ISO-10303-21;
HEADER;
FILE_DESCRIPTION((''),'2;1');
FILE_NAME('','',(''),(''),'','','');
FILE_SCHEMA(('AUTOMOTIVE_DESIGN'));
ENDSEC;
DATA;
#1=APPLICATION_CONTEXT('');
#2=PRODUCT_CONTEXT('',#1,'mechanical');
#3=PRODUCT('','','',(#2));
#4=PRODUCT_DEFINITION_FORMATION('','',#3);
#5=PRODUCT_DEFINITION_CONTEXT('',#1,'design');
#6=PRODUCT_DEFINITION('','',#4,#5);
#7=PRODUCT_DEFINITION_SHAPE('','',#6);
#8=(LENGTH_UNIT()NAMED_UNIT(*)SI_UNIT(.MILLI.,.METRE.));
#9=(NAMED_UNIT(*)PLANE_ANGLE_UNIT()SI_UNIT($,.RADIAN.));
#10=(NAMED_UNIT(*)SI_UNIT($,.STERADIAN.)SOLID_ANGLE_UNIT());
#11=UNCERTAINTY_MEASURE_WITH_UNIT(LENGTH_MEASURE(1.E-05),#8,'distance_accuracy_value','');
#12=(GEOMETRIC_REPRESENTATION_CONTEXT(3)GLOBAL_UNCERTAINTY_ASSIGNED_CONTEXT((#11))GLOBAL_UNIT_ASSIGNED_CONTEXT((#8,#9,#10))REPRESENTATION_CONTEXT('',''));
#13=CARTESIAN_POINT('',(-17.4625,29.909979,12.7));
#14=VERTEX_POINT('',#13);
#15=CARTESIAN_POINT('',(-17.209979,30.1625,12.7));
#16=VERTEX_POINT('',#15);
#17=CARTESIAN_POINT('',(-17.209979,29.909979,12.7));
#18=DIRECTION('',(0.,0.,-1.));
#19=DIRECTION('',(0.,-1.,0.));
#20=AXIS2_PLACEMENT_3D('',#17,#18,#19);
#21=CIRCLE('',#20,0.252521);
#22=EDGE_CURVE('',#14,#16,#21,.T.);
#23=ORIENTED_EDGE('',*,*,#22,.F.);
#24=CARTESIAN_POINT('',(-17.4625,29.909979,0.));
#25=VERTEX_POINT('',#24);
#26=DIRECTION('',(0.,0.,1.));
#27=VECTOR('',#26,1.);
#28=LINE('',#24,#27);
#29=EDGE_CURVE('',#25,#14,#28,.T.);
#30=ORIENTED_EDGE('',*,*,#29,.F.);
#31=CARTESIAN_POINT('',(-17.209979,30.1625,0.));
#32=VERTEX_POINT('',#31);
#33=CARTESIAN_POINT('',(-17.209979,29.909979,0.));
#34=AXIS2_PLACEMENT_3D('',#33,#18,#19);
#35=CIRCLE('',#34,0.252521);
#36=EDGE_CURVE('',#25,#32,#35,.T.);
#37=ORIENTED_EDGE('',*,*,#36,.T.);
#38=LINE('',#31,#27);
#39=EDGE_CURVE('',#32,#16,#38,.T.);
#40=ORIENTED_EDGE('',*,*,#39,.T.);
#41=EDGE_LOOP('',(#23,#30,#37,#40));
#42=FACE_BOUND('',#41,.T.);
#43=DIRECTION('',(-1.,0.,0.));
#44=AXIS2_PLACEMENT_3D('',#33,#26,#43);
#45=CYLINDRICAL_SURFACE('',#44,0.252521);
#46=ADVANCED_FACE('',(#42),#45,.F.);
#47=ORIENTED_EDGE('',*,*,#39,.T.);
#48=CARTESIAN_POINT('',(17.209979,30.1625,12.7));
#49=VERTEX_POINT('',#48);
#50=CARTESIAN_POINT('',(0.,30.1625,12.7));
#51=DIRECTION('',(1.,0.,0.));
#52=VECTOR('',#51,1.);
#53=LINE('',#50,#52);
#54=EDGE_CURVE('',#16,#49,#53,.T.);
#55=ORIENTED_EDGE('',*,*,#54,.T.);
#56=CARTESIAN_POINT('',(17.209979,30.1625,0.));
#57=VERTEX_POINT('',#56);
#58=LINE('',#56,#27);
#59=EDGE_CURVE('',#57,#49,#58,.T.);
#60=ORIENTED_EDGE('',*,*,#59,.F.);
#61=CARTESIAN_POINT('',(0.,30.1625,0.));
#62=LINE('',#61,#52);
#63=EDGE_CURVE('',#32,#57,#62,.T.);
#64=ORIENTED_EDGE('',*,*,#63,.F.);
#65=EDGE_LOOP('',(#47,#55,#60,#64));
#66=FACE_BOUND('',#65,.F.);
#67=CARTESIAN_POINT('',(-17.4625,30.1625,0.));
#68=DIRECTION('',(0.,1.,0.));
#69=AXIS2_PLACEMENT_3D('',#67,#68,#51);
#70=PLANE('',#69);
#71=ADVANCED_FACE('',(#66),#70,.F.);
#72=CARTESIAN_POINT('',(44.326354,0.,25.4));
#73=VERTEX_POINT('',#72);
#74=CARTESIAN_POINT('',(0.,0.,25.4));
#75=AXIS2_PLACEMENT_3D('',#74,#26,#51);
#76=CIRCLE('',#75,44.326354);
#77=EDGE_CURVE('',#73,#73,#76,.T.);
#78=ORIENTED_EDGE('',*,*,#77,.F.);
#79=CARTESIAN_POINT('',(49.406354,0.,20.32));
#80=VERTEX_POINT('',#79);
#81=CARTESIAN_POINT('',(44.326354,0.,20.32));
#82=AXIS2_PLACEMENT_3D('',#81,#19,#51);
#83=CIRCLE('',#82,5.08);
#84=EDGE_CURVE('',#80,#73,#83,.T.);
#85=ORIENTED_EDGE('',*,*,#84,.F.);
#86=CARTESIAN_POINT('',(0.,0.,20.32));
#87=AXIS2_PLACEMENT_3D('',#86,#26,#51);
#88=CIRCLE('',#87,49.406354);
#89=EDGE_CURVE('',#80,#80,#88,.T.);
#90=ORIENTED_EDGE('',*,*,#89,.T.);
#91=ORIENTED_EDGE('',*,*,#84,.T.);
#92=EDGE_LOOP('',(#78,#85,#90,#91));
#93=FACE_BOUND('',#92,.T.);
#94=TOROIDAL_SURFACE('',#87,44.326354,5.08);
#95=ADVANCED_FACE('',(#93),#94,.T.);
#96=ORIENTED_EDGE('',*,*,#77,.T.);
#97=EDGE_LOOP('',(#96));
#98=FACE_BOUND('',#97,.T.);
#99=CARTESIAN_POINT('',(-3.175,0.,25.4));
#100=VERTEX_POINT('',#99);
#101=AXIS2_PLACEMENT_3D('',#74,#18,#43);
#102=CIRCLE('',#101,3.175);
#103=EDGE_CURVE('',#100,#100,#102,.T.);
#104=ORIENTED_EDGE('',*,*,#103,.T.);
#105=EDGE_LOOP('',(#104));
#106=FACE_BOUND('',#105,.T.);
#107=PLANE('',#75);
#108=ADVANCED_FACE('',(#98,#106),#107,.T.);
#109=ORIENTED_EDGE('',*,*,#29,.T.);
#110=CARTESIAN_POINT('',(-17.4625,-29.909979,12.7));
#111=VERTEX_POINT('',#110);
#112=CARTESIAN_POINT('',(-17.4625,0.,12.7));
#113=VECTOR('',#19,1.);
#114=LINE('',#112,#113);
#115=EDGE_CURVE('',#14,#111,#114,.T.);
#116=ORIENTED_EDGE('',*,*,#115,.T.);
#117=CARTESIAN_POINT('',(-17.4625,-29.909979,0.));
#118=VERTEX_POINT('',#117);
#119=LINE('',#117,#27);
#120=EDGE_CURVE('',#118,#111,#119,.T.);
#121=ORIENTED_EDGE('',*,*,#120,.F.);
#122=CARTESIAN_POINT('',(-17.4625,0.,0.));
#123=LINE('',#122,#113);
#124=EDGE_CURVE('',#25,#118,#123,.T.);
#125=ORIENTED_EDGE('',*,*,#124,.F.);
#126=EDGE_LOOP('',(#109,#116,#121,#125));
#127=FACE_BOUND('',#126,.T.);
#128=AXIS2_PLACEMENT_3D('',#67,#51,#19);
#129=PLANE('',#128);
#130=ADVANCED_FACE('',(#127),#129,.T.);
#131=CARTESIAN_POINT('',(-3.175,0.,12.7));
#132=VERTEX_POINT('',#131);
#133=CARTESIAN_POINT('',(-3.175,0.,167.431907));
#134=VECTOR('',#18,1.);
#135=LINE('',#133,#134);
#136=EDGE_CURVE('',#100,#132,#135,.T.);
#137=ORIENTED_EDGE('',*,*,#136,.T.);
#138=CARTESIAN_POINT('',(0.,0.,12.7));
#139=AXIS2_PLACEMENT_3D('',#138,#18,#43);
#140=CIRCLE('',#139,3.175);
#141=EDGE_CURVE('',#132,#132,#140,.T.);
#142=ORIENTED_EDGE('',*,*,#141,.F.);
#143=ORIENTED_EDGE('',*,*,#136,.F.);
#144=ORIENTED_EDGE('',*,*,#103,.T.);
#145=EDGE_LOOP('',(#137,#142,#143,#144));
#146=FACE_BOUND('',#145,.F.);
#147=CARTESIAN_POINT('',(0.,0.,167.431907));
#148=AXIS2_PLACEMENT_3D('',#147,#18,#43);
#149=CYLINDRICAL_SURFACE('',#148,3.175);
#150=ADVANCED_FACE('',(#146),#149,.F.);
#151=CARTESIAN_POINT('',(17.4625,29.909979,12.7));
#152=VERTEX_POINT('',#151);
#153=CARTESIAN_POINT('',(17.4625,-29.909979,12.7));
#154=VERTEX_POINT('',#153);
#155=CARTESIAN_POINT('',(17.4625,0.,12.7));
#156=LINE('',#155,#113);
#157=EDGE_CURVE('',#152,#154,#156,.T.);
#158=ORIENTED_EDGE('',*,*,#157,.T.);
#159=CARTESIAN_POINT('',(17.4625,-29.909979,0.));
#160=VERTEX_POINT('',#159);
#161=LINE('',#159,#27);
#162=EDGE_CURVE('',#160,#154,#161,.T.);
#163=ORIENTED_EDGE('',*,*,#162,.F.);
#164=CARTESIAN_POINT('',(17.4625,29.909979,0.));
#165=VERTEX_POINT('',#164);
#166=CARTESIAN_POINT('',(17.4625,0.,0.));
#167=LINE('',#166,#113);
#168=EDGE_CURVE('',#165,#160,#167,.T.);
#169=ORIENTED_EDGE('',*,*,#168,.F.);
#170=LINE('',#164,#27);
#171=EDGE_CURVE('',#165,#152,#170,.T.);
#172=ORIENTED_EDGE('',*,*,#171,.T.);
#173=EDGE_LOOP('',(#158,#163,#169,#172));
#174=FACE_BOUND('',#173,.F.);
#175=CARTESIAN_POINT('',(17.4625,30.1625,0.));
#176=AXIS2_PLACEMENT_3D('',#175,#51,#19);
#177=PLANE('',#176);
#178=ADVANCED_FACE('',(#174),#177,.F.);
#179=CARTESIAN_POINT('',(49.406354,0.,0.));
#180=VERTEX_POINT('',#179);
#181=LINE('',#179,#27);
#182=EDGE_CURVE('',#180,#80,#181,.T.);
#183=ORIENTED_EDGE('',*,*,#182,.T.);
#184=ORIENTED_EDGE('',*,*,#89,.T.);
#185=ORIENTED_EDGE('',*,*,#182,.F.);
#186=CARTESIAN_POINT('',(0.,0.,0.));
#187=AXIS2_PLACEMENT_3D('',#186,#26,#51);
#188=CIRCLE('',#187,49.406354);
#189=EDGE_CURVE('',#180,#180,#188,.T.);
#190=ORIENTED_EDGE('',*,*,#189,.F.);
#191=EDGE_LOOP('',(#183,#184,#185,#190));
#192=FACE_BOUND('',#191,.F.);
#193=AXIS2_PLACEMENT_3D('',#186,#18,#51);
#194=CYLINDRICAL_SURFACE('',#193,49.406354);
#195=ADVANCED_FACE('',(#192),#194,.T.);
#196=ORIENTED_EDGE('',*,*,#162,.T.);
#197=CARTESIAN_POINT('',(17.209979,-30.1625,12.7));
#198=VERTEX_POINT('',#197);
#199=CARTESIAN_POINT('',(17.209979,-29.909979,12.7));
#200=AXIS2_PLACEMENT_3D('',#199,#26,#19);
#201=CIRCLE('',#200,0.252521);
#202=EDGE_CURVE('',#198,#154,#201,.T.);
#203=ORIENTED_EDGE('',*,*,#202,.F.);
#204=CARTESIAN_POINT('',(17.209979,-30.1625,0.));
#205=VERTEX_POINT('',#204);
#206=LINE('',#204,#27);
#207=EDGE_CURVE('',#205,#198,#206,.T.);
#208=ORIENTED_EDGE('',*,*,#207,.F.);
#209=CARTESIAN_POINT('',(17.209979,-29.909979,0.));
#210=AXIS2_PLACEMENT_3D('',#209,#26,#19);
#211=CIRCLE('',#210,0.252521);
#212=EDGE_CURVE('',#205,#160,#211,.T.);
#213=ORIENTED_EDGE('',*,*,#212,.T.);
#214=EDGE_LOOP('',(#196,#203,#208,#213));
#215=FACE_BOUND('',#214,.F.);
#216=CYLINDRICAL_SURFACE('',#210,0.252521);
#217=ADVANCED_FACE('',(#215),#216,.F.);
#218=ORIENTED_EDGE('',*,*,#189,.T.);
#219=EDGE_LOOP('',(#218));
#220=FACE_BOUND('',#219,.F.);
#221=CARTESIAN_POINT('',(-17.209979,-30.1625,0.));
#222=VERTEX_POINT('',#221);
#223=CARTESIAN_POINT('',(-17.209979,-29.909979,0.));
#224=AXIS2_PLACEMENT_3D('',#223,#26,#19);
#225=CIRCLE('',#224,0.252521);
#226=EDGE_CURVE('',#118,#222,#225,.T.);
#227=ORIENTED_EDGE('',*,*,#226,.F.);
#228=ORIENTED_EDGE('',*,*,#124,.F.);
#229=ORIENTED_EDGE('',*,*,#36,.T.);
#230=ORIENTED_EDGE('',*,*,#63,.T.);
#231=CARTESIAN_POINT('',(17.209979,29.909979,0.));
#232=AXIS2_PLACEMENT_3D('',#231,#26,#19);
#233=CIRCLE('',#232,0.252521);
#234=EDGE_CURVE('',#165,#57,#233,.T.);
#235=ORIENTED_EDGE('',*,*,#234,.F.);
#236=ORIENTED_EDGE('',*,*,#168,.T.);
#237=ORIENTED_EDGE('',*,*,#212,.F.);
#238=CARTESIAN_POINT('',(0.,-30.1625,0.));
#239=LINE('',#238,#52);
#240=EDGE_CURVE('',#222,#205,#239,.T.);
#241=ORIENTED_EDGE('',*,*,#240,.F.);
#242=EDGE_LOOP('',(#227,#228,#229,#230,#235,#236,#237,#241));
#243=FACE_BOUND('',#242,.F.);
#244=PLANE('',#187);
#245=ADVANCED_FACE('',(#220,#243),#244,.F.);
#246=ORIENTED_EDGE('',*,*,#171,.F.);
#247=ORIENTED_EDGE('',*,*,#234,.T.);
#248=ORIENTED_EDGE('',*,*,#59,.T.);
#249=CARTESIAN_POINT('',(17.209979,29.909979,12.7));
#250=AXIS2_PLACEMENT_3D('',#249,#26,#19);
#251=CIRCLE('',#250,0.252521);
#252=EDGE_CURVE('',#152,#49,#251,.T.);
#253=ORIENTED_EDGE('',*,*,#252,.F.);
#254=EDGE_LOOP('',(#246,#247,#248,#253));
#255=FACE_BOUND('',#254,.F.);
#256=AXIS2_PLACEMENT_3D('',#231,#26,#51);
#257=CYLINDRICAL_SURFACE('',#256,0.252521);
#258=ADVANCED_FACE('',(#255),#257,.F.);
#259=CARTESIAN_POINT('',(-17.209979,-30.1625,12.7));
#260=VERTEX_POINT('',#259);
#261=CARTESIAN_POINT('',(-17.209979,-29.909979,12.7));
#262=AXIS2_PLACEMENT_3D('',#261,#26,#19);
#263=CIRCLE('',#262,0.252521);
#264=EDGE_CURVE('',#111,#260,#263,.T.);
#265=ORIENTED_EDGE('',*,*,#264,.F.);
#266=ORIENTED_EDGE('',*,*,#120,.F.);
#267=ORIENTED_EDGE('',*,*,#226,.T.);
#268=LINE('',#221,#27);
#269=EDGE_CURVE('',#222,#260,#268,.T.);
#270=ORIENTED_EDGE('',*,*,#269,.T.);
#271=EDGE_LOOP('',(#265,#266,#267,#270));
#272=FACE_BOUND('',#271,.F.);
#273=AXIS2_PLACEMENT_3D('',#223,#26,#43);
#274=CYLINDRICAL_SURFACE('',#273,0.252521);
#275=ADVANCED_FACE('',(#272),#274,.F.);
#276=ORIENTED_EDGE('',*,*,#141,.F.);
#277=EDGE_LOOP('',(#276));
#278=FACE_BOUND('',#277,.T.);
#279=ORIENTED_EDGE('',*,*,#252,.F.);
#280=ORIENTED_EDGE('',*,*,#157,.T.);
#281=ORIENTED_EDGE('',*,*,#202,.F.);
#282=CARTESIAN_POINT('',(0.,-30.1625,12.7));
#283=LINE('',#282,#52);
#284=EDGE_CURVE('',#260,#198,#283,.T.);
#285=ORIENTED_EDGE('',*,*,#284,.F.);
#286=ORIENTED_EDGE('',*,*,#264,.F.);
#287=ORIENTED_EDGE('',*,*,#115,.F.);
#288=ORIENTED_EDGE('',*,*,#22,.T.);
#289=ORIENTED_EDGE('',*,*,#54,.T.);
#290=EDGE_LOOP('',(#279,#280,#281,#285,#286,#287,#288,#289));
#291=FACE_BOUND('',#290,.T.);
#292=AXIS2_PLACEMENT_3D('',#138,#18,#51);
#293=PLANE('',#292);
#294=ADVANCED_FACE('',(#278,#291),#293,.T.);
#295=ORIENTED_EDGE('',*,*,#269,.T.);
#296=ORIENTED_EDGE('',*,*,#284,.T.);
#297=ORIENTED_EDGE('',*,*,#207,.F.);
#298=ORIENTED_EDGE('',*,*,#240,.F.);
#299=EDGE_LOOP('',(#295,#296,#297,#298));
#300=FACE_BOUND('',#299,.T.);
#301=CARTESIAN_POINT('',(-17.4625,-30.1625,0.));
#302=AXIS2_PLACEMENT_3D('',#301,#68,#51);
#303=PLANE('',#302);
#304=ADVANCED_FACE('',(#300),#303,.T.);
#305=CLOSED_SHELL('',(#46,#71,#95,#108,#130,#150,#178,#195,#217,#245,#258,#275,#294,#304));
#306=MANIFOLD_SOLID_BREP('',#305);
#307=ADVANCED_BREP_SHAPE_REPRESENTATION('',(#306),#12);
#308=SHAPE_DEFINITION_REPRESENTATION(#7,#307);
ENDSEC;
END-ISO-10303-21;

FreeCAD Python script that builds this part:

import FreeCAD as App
import Part
import Sketcher
Q = App.Units.Quantity


def edges_at(feature, points):
    """Names of the edges that pass closest to the given points."""
    edges = feature.Shape.Edges
    near = lambda p: min(range(len(edges)), key=lambda i: edges[i].distToShape(Part.Vertex(*p))[0])
    return sorted({f"Edge{near(p) + 1}" for p in points})

doc = App.newDocument("Part")
body = doc.addObject("PartDesign::Body", "Body")

# Sketch on XY plane
sketch1 = body.newObject("Sketcher::SketchObject", "Sketch")
sketch1.AttachmentSupport = (doc.getObject("XY_Plane"), [""])
sketch1.MapMode = "FlatFace"
sketch1.addGeometry(Part.Circle(App.Vector(0, 0, 0), App.Vector(0, 0, 1), 49.406354), False)
sketch1.addConstraint(Sketcher.Constraint("Coincident", 0, 3, -1, 1))
sketch1.addConstraint(Sketcher.Constraint("Diameter", 0, 98.812708))
pad1 = body.newObject("PartDesign::Pad", "Pad")
pad1.Profile = sketch1
pad1.Length = Q("1 in")

# Sketch on XY plane
sketch2 = body.newObject("Sketcher::SketchObject", "Sketch001")
sketch2.AttachmentSupport = (doc.getObject("XY_Plane"), [""])
sketch2.MapMode = "FlatFace"
sketch2.AttachmentOffset = App.Placement(App.Vector(0, 0, 1 * 25.4), App.Rotation())
sketch2.addGeometry(Part.Circle(App.Vector(0, 0, 0), App.Vector(0, 0, 1), 3.175), False)
sketch2.addConstraint(Sketcher.Constraint("Coincident", 0, 3, -1, 1))
sketch2.addConstraint(Sketcher.Constraint("Diameter", 0, Q("0.25 in")))
doc.recompute()
hole = body.newObject("PartDesign::Hole", "Hole")
hole.Profile = sketch2
hole.ThreadType = "None"
hole.Diameter = Q("0.25 in")
hole.DepthType = "ThroughAll"

# Sketch on XY plane
sketch3 = body.newObject("Sketcher::SketchObject", "Sketch002")
sketch3.AttachmentSupport = (doc.getObject("XY_Plane"), [""])
sketch3.MapMode = "FlatFace"
sketch3.addGeometry(Part.LineSegment(App.Vector(-17.4625, -30.1625, 0), App.Vector(-17.4625, 30.1625, 0)), False)
sketch3.addGeometry(Part.LineSegment(App.Vector(-17.4625, 30.1625, 0), App.Vector(17.4625, 30.1625, 0)), False)
sketch3.addGeometry(Part.LineSegment(App.Vector(17.4625, 30.1625, 0), App.Vector(17.4625, -30.1625, 0)), False)
sketch3.addGeometry(Part.LineSegment(App.Vector(17.4625, -30.1625, 0), App.Vector(-17.4625, -30.1625, 0)), False)
sketch3.addConstraint(Sketcher.Constraint("Coincident", 0, 2, 1, 1))
sketch3.addConstraint(Sketcher.Constraint("Coincident", 1, 2, 2, 1))
sketch3.addConstraint(Sketcher.Constraint("Coincident", 2, 2, 3, 1))
sketch3.addConstraint(Sketcher.Constraint("Coincident", 3, 2, 0, 1))
sketch3.addConstraint(Sketcher.Constraint("Vertical", 0))
sketch3.addConstraint(Sketcher.Constraint("Horizontal", 1))
sketch3.addConstraint(Sketcher.Constraint("Vertical", 2))
sketch3.addConstraint(Sketcher.Constraint("Horizontal", 3))
sketch3.addConstraint(Sketcher.Constraint("Symmetric", 0, 2, 2, 2, -1, 1))
sketch3.addConstraint(Sketcher.Constraint("DistanceX", 1, 1, 1, 2, Q("1.375 in")))
sketch3.addConstraint(Sketcher.Constraint("DistanceY", 0, 1, 0, 2, Q("2.375 in")))
pocket1 = body.newObject("PartDesign::Pocket", "Pocket")
pocket1.Profile = sketch3
pocket1.Length = Q("0.5 in")
pocket1.Reversed = True
doc.recompute()

fillet = body.newObject("PartDesign::Fillet", "Fillet")
fillet.Base = (pocket1, edges_at(pocket1, [(-49.406, 0, 25.4)]))
fillet.Radius = Q("0.2 in")
doc.recompute()

fillet2 = body.newObject("PartDesign::Fillet", "Fillet001")
fillet2.Base = (fillet, edges_at(fillet, [
    (-17.462, 30.163, 6.35),
    (17.462, 30.163, 6.35),
    (-17.462, -30.163, 6.35),
    (17.462, -30.163, 6.35),
]))
fillet2.Radius = 0.252521

doc.recompute()
